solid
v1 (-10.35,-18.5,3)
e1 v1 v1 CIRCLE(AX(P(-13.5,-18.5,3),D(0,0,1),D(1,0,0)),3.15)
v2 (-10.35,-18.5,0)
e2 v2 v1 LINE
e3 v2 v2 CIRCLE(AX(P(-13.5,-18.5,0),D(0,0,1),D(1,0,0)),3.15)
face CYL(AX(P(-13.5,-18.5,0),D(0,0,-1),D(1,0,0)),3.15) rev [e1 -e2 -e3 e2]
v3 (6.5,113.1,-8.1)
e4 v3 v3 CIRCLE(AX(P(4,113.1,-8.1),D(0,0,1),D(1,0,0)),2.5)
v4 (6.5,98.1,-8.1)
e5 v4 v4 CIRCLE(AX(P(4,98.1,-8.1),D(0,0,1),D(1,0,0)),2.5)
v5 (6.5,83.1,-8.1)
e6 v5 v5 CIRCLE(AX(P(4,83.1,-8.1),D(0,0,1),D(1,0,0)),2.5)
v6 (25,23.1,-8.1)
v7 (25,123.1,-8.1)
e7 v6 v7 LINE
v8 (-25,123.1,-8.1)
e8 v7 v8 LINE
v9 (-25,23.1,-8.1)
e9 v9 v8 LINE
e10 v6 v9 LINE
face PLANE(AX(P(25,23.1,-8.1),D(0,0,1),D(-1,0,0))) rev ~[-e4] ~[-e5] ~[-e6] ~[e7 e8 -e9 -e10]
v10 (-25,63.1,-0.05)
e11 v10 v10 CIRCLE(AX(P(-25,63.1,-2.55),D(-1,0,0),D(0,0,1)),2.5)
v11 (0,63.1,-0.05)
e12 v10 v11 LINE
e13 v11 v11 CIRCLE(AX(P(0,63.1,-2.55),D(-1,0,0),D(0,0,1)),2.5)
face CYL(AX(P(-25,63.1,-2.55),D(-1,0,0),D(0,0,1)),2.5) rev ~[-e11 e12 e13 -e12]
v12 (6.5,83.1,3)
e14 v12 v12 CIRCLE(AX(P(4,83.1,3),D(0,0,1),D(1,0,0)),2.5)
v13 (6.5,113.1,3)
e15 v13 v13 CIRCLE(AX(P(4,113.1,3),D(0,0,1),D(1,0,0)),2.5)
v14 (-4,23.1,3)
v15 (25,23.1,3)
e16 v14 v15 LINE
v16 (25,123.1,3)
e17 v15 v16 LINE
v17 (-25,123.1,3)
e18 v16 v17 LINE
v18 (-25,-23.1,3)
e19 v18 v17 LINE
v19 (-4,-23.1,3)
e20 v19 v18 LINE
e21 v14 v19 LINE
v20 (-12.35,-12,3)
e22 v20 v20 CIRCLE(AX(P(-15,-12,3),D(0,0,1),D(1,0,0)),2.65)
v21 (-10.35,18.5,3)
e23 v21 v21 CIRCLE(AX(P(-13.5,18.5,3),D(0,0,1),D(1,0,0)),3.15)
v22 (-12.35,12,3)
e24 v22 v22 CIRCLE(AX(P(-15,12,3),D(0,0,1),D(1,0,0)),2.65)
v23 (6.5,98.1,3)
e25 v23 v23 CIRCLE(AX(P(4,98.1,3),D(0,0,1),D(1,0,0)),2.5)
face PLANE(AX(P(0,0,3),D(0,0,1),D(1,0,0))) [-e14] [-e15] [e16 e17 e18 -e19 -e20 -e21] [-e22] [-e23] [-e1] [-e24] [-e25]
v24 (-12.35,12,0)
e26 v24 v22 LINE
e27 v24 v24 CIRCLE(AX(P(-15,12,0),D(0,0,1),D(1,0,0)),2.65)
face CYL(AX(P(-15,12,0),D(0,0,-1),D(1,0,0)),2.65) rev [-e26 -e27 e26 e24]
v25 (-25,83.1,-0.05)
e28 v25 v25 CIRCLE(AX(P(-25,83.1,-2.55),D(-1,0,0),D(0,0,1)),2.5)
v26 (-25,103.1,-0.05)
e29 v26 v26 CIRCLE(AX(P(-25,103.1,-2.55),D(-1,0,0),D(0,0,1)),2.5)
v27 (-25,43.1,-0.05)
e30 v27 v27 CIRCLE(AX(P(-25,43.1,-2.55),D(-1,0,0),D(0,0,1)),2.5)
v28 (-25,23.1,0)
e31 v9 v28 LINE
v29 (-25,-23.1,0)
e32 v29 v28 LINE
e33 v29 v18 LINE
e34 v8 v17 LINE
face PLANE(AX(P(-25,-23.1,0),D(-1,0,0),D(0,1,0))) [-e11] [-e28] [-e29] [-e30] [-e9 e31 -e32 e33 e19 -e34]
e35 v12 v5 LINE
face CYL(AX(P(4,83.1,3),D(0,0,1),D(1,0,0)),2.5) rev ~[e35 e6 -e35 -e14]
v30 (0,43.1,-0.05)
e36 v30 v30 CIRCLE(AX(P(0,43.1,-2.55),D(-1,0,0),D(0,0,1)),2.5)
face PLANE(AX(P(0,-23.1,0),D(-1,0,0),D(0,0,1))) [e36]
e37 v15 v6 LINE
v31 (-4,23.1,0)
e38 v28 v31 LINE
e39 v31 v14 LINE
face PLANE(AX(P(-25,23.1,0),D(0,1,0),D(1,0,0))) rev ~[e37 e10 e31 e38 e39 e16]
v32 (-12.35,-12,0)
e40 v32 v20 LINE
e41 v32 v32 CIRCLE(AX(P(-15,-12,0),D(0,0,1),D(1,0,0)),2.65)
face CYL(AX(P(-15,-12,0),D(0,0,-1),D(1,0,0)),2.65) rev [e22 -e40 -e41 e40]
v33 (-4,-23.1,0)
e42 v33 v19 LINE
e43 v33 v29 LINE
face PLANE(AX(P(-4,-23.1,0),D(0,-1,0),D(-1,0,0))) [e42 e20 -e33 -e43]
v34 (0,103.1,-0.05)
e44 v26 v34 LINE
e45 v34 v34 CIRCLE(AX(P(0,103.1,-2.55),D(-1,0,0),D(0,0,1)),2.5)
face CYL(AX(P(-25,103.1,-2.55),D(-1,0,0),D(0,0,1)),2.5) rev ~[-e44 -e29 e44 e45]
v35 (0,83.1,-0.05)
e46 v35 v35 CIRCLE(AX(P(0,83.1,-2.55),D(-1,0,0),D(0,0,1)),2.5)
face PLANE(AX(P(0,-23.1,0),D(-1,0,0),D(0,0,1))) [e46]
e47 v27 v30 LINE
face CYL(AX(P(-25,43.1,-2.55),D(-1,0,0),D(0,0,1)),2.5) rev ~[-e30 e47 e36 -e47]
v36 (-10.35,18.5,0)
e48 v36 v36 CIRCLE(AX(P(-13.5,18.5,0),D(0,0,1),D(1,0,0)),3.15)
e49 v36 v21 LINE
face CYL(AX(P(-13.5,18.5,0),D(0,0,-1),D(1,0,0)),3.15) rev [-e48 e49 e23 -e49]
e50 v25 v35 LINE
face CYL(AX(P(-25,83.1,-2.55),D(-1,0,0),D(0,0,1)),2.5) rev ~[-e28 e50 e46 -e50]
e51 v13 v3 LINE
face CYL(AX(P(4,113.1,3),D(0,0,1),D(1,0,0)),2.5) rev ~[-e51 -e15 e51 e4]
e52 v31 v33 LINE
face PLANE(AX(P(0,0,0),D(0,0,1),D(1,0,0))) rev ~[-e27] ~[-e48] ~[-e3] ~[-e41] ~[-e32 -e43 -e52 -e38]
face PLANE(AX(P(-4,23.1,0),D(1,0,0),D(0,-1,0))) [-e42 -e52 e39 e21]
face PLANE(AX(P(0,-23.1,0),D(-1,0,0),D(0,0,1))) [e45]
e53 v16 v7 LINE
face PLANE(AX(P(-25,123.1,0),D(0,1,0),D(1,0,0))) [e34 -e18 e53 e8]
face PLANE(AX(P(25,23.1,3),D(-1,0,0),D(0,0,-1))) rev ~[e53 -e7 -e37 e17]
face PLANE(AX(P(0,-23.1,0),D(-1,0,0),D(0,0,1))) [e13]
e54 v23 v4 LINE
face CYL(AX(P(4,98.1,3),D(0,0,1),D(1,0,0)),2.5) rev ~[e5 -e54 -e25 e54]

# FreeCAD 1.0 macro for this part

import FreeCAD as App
import Part
import Sketcher

V = App.Vector

doc = App.newDocument("Part")
body = doc.addObject("PartDesign::Body", "Body")

sketch1 = body.newObject("Sketcher::SketchObject", "Sketch")
sketch1.AttachmentSupport = (doc.getObject("XY_Plane"), [""])
sketch1.MapMode = "FlatFace"
sketch1.addGeometry([
    Part.LineSegment(V(-25, -23.1, 0), V(-4, -23.1, 0)),
    Part.LineSegment(V(-4, -23.1, 0), V(-4, 23.1, 0)),
    Part.LineSegment(V(-4, 23.1, 0), V(-25, 23.1, 0)),
    Part.LineSegment(V(-25, 23.1, 0), V(-25, -23.1, 0)),
    Part.Circle(V(-15, -12, 0), V(0, 0, 1), 2.65),
    Part.Circle(V(-13.5, -18.5, 0), V(0, 0, 1), 3.15),
    Part.Circle(V(-15, 12, 0), V(0, 0, 1), 2.65),
    Part.Circle(V(-13.5, 18.5, 0), V(0, 0, 1), 3.15),
], False)
sketch1.addConstraint([
    Sketcher.Constraint("Coincident", 0, 2, 1, 1),
    Sketcher.Constraint("Coincident", 1, 2, 2, 1),
    Sketcher.Constraint("Coincident", 2, 2, 3, 1),
    Sketcher.Constraint("Coincident", 3, 2, 0, 1),
    Sketcher.Constraint("Horizontal", 0),
    Sketcher.Constraint("Vertical", 1),
    Sketcher.Constraint("Horizontal", 2),
    Sketcher.Constraint("Vertical", 3),
    Sketcher.Constraint("Equal", 4, 6),
    Sketcher.Constraint("Equal", 5, 7),
    Sketcher.Constraint("Symmetric", 4, 3, 6, 3, -1),
    Sketcher.Constraint("Symmetric", 5, 3, 7, 3, -1),
    Sketcher.Constraint("Diameter", 4, 5.3),
    Sketcher.Constraint("Diameter", 5, 6.3),
    Sketcher.Constraint("DistanceX", 0, 1, 0, 2, 21.0),
    Sketcher.Constraint("DistanceY", 1, 1, 1, 2, 46.2),
    Sketcher.Constraint("DistanceX", 4, 3, -1, 1, 15.0),
    Sketcher.Constraint("DistanceY", 4, 3, -1, 1, 12.0),
    Sketcher.Constraint("DistanceX", 0, 2, -1, 1, 4.0),
    Sketcher.Constraint("DistanceY", 5, 3, 7, 3, 37.0),
    Sketcher.Constraint("DistanceX", 5, 3, -1, 1, 13.5),
    Sketcher.Constraint("DistanceY", 0, 2, -1, 1, 23.1),
])
pad1 = body.newObject("PartDesign::Pad", "Pad")
pad1.Profile = sketch1
pad1.Length = 3

sketch2 = body.newObject("Sketcher::SketchObject", "Sketch001")
sketch2.AttachmentSupport = (doc.getObject("XZ_Plane"), [""])
sketch2.MapMode = "FlatFace"
sketch2.AttachmentOffset = App.Placement(V(0, 0, -23.1), App.Rotation())
sketch2.addGeometry([
    Part.LineSegment(V(-25, 3, 0), V(25, 3, 0)),
    Part.LineSegment(V(25, 3, 0), V(25, -8.1, 0)),
    Part.LineSegment(V(25, -8.1, 0), V(-25, -8.1, 0)),
    Part.LineSegment(V(-25, -8.1, 0), V(-25, 3, 0)),
], False)
sketch2.addConstraint([
    Sketcher.Constraint("Coincident", 0, 2, 1, 1),
    Sketcher.Constraint("Coincident", 1, 2, 2, 1),
    Sketcher.Constraint("Coincident", 2, 2, 3, 1),
    Sketcher.Constraint("Coincident", 3, 2, 0, 1),
    Sketcher.Constraint("Horizontal", 0),
    Sketcher.Constraint("Vertical", 1),
    Sketcher.Constraint("Horizontal", 2),
    Sketcher.Constraint("Vertical", 3),
    Sketcher.Constraint("DistanceX", 0, 1, 0, 2, 50.0),
    Sketcher.Constraint("DistanceY", 1, 2, 1, 1, 11.1),
    Sketcher.Constraint("DistanceX", -1, 1, 0, 2, 25.0),
    Sketcher.Constraint("DistanceY", -1, 1, 0, 2, 3.0),
])
pad2 = body.newObject("PartDesign::Pad", "Pad001")
pad2.Profile = sketch2
pad2.Length = 100
pad2.Reversed = True

sketch3 = body.newObject("Sketcher::SketchObject", "Sketch002")
sketch3.AttachmentSupport = (doc.getObject("YZ_Plane"), [""])
sketch3.MapMode = "FlatFace"
sketch3.AttachmentOffset = App.Placement(V(0, 0, -25), App.Rotation())
sketch3.addGeometry([
    Part.Circle(V(103.1, -2.55, 0), V(0, 0, 1), 2.5),
    Part.Circle(V(83.1, -2.55, 0), V(0, 0, 1), 2.5),
    Part.Circle(V(63.1, -2.55, 0), V(0, 0, 1), 2.5),
    Part.Circle(V(43.1, -2.55, 0), V(0, 0, 1), 2.5),
], False)
sketch3.addConstraint([
    Sketcher.Constraint("Equal", 0, 1),
    Sketcher.Constraint("Equal", 1, 2),
    Sketcher.Constraint("Equal", 2, 3),
    Sketcher.Constraint("Horizontal", 0, 3, 1, 3),
    Sketcher.Constraint("Horizontal", 1, 3, 2, 3),
    Sketcher.Constraint("Horizontal", 2, 3, 3, 3),
    Sketcher.Constraint("Diameter", 0, 5.0),
    Sketcher.Constraint("DistanceX", 1, 3, 0, 3, 20.0),
    Sketcher.Constraint("DistanceX", 2, 3, 1, 3, 20.0),
    Sketcher.Constraint("DistanceX", 3, 3, 2, 3, 20.0),
    Sketcher.Constraint("DistanceX", -1, 1, 0, 3, 103.1),
    Sketcher.Constraint("DistanceY", 0, 3, -1, 1, 2.55),
])
pocket1 = body.newObject("PartDesign::Pocket", "Pocket")
pocket1.Profile = sketch3
pocket1.Length = 25
pocket1.Reversed = True

sketch4 = body.newObject("Sketcher::SketchObject", "Sketch003")
sketch4.AttachmentSupport = (doc.getObject("XY_Plane"), [""])
sketch4.MapMode = "FlatFace"
sketch4.AttachmentOffset = App.Placement(V(0, 0, 3), App.Rotation())
sketch4.addGeometry([
    Part.Circle(V(4, 83.1, 0), V(0, 0, 1), 2.5),
    Part.Circle(V(4, 98.1, 0), V(0, 0, 1), 2.5),
    Part.Circle(V(4, 113.1, 0), V(0, 0, 1), 2.5),
], False)
sketch4.addConstraint([
    Sketcher.Constraint("Equal", 0, 1),
    Sketcher.Constraint("Equal", 1, 2),
    Sketcher.Constraint("Vertical", 0, 3, 1, 3),
    Sketcher.Constraint("Vertical", 1, 3, 2, 3),
    Sketcher.Constraint("Diameter", 0, 5.0),
    Sketcher.Constraint("DistanceX", -1, 1, 0, 3, 4.0),
    Sketcher.Constraint("DistanceY", 0, 3, 1, 3, 15.0),
    Sketcher.Constraint("DistanceY", 1, 3, 2, 3, 15.0),
    Sketcher.Constraint("DistanceY", -1, 1, 0, 3, 83.1),
])
pocket2 = body.newObject("PartDesign::Pocket", "Pocket001")
pocket2.Profile = sketch4
pocket2.Type = "ThroughAll"

doc.recompute()
